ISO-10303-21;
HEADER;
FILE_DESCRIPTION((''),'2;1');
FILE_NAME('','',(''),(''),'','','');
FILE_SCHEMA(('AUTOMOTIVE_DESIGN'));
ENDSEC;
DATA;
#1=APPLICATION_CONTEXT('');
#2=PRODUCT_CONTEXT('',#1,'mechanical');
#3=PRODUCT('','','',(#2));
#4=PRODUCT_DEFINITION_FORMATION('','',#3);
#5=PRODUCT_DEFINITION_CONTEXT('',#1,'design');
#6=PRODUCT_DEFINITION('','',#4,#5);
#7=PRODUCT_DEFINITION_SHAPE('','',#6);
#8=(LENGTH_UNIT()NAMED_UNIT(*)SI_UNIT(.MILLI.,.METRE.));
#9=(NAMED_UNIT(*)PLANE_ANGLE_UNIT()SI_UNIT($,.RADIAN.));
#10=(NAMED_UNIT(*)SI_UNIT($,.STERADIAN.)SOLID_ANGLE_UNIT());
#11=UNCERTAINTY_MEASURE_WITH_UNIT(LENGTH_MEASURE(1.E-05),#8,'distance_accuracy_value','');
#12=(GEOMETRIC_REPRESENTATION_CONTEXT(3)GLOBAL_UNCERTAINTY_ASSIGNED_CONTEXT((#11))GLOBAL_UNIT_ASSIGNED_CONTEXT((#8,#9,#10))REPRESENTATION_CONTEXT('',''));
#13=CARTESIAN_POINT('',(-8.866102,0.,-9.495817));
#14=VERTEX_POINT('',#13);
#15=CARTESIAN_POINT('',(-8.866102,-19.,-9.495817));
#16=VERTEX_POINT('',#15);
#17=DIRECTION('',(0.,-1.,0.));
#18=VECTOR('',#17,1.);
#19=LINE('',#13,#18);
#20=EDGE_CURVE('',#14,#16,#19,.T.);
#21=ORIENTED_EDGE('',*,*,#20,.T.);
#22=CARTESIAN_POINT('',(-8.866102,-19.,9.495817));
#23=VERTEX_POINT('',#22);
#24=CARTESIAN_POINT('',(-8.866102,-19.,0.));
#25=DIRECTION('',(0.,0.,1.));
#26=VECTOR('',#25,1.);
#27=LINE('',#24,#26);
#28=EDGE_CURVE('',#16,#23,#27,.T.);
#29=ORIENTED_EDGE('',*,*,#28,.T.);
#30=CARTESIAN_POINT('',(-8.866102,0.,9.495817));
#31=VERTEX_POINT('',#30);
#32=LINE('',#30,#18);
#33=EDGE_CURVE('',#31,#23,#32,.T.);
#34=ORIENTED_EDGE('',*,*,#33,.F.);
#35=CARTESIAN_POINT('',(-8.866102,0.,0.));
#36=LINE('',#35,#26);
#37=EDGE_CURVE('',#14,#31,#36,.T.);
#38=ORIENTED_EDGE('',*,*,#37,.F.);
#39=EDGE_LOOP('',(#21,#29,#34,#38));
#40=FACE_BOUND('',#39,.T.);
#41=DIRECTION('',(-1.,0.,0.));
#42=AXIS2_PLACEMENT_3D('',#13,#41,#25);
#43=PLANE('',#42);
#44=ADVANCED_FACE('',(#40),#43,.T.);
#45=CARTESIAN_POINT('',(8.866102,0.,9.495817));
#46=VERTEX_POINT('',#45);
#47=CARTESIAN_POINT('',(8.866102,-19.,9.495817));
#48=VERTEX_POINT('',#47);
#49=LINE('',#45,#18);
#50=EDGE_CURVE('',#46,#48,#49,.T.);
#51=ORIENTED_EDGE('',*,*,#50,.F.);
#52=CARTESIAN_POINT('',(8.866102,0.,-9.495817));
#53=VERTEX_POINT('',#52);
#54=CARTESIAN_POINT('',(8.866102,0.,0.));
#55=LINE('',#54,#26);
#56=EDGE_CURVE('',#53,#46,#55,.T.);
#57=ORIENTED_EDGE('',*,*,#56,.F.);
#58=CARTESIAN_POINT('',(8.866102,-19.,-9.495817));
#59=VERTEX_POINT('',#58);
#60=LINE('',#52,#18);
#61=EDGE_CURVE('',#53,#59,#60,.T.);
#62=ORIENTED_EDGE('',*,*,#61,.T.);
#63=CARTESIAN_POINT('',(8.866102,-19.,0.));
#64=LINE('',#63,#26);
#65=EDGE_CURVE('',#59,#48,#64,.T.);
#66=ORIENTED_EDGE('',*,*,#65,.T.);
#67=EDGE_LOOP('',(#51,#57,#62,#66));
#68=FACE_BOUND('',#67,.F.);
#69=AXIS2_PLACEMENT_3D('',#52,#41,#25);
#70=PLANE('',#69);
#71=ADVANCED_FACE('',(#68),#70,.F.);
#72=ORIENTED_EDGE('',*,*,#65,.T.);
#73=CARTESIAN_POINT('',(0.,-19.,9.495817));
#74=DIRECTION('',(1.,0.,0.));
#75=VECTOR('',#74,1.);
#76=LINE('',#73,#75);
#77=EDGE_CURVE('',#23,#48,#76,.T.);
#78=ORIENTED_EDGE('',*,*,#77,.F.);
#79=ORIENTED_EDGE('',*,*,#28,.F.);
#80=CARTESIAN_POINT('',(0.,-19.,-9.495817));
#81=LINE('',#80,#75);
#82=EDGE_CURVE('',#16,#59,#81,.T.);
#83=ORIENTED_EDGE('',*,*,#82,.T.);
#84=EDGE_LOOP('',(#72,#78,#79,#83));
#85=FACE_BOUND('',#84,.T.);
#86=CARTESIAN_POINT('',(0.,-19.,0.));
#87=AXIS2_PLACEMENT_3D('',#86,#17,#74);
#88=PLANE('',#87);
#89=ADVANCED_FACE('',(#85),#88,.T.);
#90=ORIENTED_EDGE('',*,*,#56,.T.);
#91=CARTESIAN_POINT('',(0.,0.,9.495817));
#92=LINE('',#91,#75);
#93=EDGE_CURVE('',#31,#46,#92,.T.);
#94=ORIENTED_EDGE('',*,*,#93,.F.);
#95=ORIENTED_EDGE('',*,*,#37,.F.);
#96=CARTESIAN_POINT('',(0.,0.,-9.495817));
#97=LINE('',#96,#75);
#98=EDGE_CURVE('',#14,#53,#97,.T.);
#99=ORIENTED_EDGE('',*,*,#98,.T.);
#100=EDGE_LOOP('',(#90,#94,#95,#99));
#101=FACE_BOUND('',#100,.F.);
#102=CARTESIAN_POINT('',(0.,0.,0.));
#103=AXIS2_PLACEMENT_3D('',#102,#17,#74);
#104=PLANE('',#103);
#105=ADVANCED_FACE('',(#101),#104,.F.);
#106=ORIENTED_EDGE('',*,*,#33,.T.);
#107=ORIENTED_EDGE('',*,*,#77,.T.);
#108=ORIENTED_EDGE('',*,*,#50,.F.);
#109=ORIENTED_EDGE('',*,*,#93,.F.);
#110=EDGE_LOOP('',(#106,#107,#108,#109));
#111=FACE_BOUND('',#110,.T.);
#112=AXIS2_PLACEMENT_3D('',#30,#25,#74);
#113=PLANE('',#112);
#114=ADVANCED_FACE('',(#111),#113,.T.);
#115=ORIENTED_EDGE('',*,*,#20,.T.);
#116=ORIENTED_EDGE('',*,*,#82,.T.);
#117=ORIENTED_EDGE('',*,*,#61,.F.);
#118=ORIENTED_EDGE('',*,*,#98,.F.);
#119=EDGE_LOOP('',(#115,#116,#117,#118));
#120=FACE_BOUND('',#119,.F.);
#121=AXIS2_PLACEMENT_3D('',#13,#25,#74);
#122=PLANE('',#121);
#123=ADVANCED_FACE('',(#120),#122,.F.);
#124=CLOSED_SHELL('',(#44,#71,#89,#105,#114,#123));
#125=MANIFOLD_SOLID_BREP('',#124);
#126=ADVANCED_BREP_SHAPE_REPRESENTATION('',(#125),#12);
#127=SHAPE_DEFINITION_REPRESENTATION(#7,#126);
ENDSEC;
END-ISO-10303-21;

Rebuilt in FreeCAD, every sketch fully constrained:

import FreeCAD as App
import Part
import Sketcher
from FreeCAD import Vector


def add_polygon(sketch, points):
    """Adds a closed chain of lines whose ends are joined by coincident constraints."""
    first, n = sketch.GeometryCount, len(points)
    for a, b in zip(points, points[1:] + points[:1]):
        sketch.addGeometry(Part.LineSegment(App.Vector(*a, 0), App.Vector(*b, 0)), False)
    for i in range(n):
        sketch.addConstraint(Sketcher.Constraint("Coincident", first + i, 2, first + (i + 1) % n, 1))

doc = App.newDocument("Part")
body = doc.addObject("PartDesign::Body", "Body")

# Sketch on XZ plane
sketch1 = body.newObject("Sketcher::SketchObject", "Sketch")
sketch1.AttachmentSupport = (doc.getObject("XZ_Plane"), [""])
sketch1.MapMode = "FlatFace"
add_polygon(sketch1, [(-9, 9), (-9, -9), (9, -9), (9, 9)])  # lines 0-3
sketch1.addConstraint([
    Sketcher.Constraint("Vertical", 0),
    Sketcher.Constraint("Horizontal", 1),
    Sketcher.Constraint("Vertical", 2),
    Sketcher.Constraint("Horizontal", 3),
    Sketcher.Constraint("Symmetric", 0, 2, 2, 2, -1, 1),
    Sketcher.Constraint("DistanceX", 1, 1, 1, 2, 17.732204),
    Sketcher.Constraint("DistanceY", 0, 2, 0, 1, 18.991634),
])
pad1 = body.newObject("PartDesign::Pad", "Pad")
pad1.Profile = sketch1
pad1.Length = 19

doc.recompute()
